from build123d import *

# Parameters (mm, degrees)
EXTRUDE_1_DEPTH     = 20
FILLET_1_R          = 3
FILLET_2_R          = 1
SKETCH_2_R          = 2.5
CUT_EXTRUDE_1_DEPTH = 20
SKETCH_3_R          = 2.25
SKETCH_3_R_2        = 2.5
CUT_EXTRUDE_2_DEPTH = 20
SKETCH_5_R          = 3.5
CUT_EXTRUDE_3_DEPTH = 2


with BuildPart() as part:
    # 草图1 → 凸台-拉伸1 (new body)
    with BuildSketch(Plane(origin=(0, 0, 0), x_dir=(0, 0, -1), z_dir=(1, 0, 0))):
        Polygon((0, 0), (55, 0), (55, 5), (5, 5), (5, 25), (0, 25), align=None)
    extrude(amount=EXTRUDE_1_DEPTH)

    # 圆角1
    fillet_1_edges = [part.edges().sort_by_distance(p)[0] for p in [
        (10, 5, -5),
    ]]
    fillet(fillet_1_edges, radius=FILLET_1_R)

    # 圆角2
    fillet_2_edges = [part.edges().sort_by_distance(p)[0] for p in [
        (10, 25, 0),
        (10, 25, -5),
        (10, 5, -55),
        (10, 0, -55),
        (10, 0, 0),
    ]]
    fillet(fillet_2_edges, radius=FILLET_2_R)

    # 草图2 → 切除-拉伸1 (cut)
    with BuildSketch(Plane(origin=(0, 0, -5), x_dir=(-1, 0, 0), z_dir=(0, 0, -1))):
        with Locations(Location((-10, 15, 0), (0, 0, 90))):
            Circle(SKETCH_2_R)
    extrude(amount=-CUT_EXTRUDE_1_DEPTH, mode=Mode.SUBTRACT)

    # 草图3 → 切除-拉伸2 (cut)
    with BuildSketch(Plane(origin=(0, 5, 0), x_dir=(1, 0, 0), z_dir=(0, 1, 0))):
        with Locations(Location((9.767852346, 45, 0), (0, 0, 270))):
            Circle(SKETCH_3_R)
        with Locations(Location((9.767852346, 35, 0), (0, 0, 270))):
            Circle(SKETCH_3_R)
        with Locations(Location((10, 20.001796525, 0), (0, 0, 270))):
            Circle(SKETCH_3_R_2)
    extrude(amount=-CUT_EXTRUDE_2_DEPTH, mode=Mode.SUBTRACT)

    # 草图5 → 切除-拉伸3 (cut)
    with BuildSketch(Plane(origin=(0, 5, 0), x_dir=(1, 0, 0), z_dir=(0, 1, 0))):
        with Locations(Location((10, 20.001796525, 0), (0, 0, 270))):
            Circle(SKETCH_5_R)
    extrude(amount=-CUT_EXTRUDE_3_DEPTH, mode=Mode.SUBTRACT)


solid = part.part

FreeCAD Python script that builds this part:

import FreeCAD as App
import Part
import Sketcher


def edges_at(feature, points):
    """Names of the edges that pass closest to the given points."""
    edges = feature.Shape.Edges
    near = lambda p: min(range(len(edges)), key=lambda i: edges[i].distToShape(Part.Vertex(*p))[0])
    return sorted({f"Edge{near(p) + 1}" for p in points})

doc = App.newDocument("Part")
params = doc.addObject("Spreadsheet::Sheet", "Params")
for row, (alias, value) in enumerate([
    ("sketch1_width", "5 mm"),
    ("sketch1_width2", "20 mm"),
    ("sketch1_height", "55 mm"),
    ("pad1_length", "20 mm"),
    ("fillet_radius", "3 mm"),
    ("fillet2_radius", "1 mm"),
    ("sketch2_diameter", "5 mm"),
    ("pocket1_length", "20 mm"),
    ("sketch3_diameter", "5 mm"),
    ("sketch3_diameter2", "4.5 mm"),
    ("pocket2_length", "20 mm"),
    ("sketch4_diameter", "7 mm"),
    ("pocket3_length", "2 mm"),
], start=1):
    params.set(f"A{row}", alias)
    params.set(f"B{row}", "=" + value)
    params.setAlias(f"B{row}", alias)

body = doc.addObject("PartDesign::Body", "Body")

sketch1 = body.newObject("Sketcher::SketchObject", "Sketch")
sketch1.AttachmentSupport = (doc.getObject("YZ_Plane"), [""])
sketch1.MapMode = "FlatFace"
sketch1.addGeometry([
    Part.LineSegment(App.Vector(0, 0, 0), App.Vector(0, -55, 0)),
    Part.LineSegment(App.Vector(0, -55, 0), App.Vector(5, -55, 0)),
    Part.LineSegment(App.Vector(5, -55, 0), App.Vector(5, -5, 0)),
    Part.LineSegment(App.Vector(5, -5, 0), App.Vector(25, -5, 0)),
    Part.LineSegment(App.Vector(25, -5, 0), App.Vector(25, 0, 0)),
    Part.LineSegment(App.Vector(25, 0, 0), App.Vector(0, 0, 0)),
], False)
sketch1.addConstraint([
    Sketcher.Constraint("Coincident", 0, 2, 1, 1),
    Sketcher.Constraint("Coincident", 1, 2, 2, 1),
    Sketcher.Constraint("Coincident", 2, 2, 3, 1),
    Sketcher.Constraint("Coincident", 3, 2, 4, 1),
    Sketcher.Constraint("Coincident", 4, 2, 5, 1),
    Sketcher.Constraint("Coincident", 5, 2, 0, 1),
    Sketcher.Constraint("Vertical", 0),
    Sketcher.Constraint("Horizontal", 1),
    Sketcher.Constraint("Vertical", 2),
    Sketcher.Constraint("Horizontal", 3),
    Sketcher.Constraint("Vertical", 4),
    Sketcher.Constraint("Horizontal", 5),
    Sketcher.Constraint("Coincident", 5, 2, -1, 1),
    Sketcher.Constraint("Equal", 1, 4),
    Sketcher.Constraint("DistanceX", 1, 1, 1, 2, 5.0),
    Sketcher.Constraint("DistanceX", 3, 1, 3, 2, 20.0),
    Sketcher.Constraint("DistanceY", 0, 2, 0, 1, 55.0),
])
sketch1.setExpression("Constraints[14]", "Params.sketch1_width")
sketch1.setExpression("Constraints[15]", "Params.sketch1_width2")
sketch1.setExpression("Constraints[16]", "Params.sketch1_height")
pad1 = body.newObject("PartDesign::Pad", "Pad")
pad1.Profile = sketch1
pad1.setExpression("Length", "Params.pad1_length")
doc.recompute()

fillet = body.newObject("PartDesign::Fillet", "Fillet")
fillet.Base = (pad1, edges_at(pad1, [(10, 5, -5)]))
fillet.setExpression("Radius", "Params.fillet_radius")
doc.recompute()

fillet2 = body.newObject("PartDesign::Fillet", "Fillet001")
fillet2.Base = (fillet, edges_at(fillet, [
    (10, 25, 0),
    (10, 25, -5),
    (10, 5, -55),
    (10, 0, -55),
    (10, 0, 0),
]))
fillet2.setExpression("Radius", "Params.fillet2_radius")

sketch2 = body.newObject("Sketcher::SketchObject", "Sketch001")
sketch2.AttachmentSupport = (doc.getObject("XY_Plane"), [""])
sketch2.MapMode = "FlatFace"
sketch2.AttachmentOffset = App.Placement(App.Vector(0, 0, -5), App.Rotation())
sketch2.addGeometry(Part.Circle(App.Vector(10, 15, 0), App.Vector(0, 0, 1), 2.5), False)
sketch2.addConstraint([
    Sketcher.Constraint("Diameter", 0, 5.0),
    Sketcher.Constraint("DistanceX", -1, 1, 0, 3, 10.0),
    Sketcher.Constraint("DistanceY", -1, 1, 0, 3, 15.0),
])
sketch2.setExpression("Constraints[0]", "Params.sketch2_diameter")
pocket1 = body.newObject("PartDesign::Pocket", "Pocket")
pocket1.Profile = sketch2
pocket1.setExpression("Length", "Params.pocket1_length")
pocket1.Reversed = True

sketch3 = body.newObject("Sketcher::SketchObject", "Sketch002")
sketch3.AttachmentSupport = (doc.getObject("XZ_Plane"), [""])
sketch3.MapMode = "FlatFace"
sketch3.AttachmentOffset = App.Placement(App.Vector(0, 0, -5), App.Rotation())
sketch3.addGeometry([
    Part.Circle(App.Vector(9.8, -45, 0), App.Vector(0, 0, 1), 2.2),
    Part.Circle(App.Vector(9.8, -35, 0), App.Vector(0, 0, 1), 2.2),
    Part.Circle(App.Vector(10, -20, 0), App.Vector(0, 0, 1), 2.5),
], False)
sketch3.addConstraint([
    Sketcher.Constraint("Equal", 0, 1),
    Sketcher.Constraint("Vertical", 0, 3, 1, 3),
    Sketcher.Constraint("Diameter", 2, 5.0),
    Sketcher.Constraint("Diameter", 0, 4.5),
    Sketcher.Constraint("DistanceY", 0, 3, -1, 1, 45.0),
    Sketcher.Constraint("DistanceY", 1, 3, -1, 1, 35.0),
    Sketcher.Constraint("DistanceX", -1, 1, 2, 3, 10.0),
    Sketcher.Constraint("DistanceX", -1, 1, 0, 3, 9.767852),
    Sketcher.Constraint("DistanceY", 2, 3, -1, 1, 20.001797),
])
sketch3.setExpression("Constraints[2]", "Params.sketch3_diameter")
sketch3.setExpression("Constraints[3]", "Params.sketch3_diameter2")
pocket2 = body.newObject("PartDesign::Pocket", "Pocket001")
pocket2.Profile = sketch3
pocket2.setExpression("Length", "Params.pocket2_length")
pocket2.Reversed = True

sketch4 = body.newObject("Sketcher::SketchObject", "Sketch003")
sketch4.AttachmentSupport = (doc.getObject("XZ_Plane"), [""])
sketch4.MapMode = "FlatFace"
sketch4.AttachmentOffset = App.Placement(App.Vector(0, 0, -5), App.Rotation())
sketch4.addGeometry(Part.Circle(App.Vector(10, -20, 0), App.Vector(0, 0, 1), 3.5), False)
sketch4.addConstraint([
    Sketcher.Constraint("Diameter", 0, 7.0),
    Sketcher.Constraint("DistanceX", -1, 1, 0, 3, 10.0),
    Sketcher.Constraint("DistanceY", 0, 3, -1, 1, 20.001797),
])
sketch4.setExpression("Constraints[0]", "Params.sketch4_diameter")
pocket3 = body.newObject("PartDesign::Pocket", "Pocket002")
pocket3.Profile = sketch4
pocket3.setExpression("Length", "Params.pocket3_length")
pocket3.Reversed = True

doc.recompute()
